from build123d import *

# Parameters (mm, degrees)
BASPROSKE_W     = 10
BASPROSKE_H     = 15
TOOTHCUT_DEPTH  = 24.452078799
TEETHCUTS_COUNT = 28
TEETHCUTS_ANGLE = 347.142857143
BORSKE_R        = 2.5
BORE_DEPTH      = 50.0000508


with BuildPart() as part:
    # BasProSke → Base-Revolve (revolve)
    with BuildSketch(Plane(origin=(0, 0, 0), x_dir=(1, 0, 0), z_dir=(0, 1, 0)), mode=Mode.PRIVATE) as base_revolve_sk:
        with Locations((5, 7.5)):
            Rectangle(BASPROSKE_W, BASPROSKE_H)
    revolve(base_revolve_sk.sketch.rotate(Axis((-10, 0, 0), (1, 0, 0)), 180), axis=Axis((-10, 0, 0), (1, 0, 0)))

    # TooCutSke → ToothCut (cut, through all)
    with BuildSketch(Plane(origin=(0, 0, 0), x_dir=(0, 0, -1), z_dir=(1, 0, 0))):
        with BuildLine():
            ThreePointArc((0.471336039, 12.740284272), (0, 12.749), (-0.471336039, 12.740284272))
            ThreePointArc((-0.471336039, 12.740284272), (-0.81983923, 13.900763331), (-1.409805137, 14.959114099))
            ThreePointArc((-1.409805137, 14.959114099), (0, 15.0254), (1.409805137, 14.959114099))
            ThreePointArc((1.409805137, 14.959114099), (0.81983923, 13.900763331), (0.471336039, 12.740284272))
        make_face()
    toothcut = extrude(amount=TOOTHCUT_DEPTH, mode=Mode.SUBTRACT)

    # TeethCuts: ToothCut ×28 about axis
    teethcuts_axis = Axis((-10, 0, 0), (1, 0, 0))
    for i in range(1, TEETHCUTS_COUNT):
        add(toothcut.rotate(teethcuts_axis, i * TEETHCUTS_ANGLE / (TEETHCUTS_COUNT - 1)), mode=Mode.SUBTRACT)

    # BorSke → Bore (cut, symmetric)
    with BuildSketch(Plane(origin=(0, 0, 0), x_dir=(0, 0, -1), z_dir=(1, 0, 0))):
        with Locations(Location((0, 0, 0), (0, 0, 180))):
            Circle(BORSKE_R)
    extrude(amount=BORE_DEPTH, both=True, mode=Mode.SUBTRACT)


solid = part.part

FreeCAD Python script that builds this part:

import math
import FreeCAD as App
import Part
import Sketcher

V = App.Vector
Q = App.Units.Quantity


def add_polygon(sketch, points):
    """Adds a closed chain of lines whose ends are joined by coincident constraints."""
    first, n = sketch.GeometryCount, len(points)
    for a, b in zip(points, points[1:] + points[:1]):
        sketch.addGeometry(Part.LineSegment(App.Vector(*a, 0), App.Vector(*b, 0)), False)
    for i in range(n):
        sketch.addConstraint(Sketcher.Constraint("Coincident", first + i, 2, first + (i + 1) % n, 1))

doc = App.newDocument("Part")
body = doc.addObject("PartDesign::Body", "Body")

sketch1 = body.newObject("Sketcher::SketchObject", "Sketch")
sketch1.AttachmentSupport = (doc.getObject("XZ_Plane"), [""])
sketch1.MapMode = "FlatFace"
add_polygon(sketch1, [(0, -15), (0, 0), (10, 0), (10, -15)])
sketch1.addConstraint([
    Sketcher.Constraint("Vertical", 0),
    Sketcher.Constraint("Horizontal", 1),
    Sketcher.Constraint("Vertical", 2),
    Sketcher.Constraint("Horizontal", 3),
    Sketcher.Constraint("Coincident", 0, 2, -1, 1),
    Sketcher.Constraint("DistanceX", 1, 1, 1, 2, Q("10 mm")),
    Sketcher.Constraint("DistanceY", 0, 1, 0, 2, Q("15 mm")),
])
revolution = body.newObject("PartDesign::Revolution", "Revolution")
revolution.Profile = sketch1
revolution.ReferenceAxis = (sketch1, ["H_Axis"])
revolution.Angle = 360

sketch2 = body.newObject("Sketcher::SketchObject", "Sketch001")
sketch2.AttachmentSupport = (doc.getObject("YZ_Plane"), [""])
sketch2.MapMode = "FlatFace"
sketch2.addGeometry([
    Part.ArcOfCircle(Part.Circle(V(0, 0, 0), V(0, 0, 1), 12.749), math.radians(-2.118733), math.radians(2.118733)),
    Part.ArcOfCircle(Part.Circle(V(11.719305, -5.977478, 0), V(0, 0, 1), 5.6), math.radians(54.652268), math.radians(79.49521)),
    Part.ArcOfCircle(Part.Circle(V(0, 0, 0), V(0, 0, 1), 15.0254), math.radians(-5.383875), math.radians(5.383875)),
    Part.ArcOfCircle(Part.Circle(V(11.719305, 5.977478, 0), V(0, 0, 1), 5.6), math.radians(-79.49521), math.radians(-54.652268)),
], False)
sketch2.addConstraint([
    Sketcher.Constraint("Coincident", 0, 1, 1, 2),
    Sketcher.Constraint("Coincident", 1, 1, 2, 1),
    Sketcher.Constraint("Coincident", 2, 2, 3, 2),
    Sketcher.Constraint("Coincident", 3, 1, 0, 2),
    Sketcher.Constraint("Coincident", 0, 3, -1, 1),
    Sketcher.Constraint("Coincident", 2, 3, -1, 1),
    Sketcher.Constraint("Equal", 1, 3),
    Sketcher.Constraint("Symmetric", 1, 3, 3, 3, -1),
    Sketcher.Constraint("Radius", 1, Q("5.6 mm")),
    Sketcher.Constraint("Radius", 0, Q("12.749 mm")),
    Sketcher.Constraint("Radius", 2, Q("15.0254 mm")),
    Sketcher.Constraint("DistanceY", 1, 3, -1, 1, Q("5.977478 mm")),
    Sketcher.Constraint("DistanceX", 1, 3, 0, 1, Q("1.020979 mm")),
])
pocket1 = body.newObject("PartDesign::Pocket", "Pocket")
pocket1.Profile = sketch2
pocket1.Type = "ThroughAll"
pocket1.Reversed = True
doc.recompute()

polarpattern = body.newObject("PartDesign::PolarPattern", "PolarPattern")
polarpattern.Originals = [pocket1]
polarpattern.Axis = (doc.getObject("X_Axis"), [""])
polarpattern.Angle = 360
polarpattern.Occurrences = 28
body.Tip = polarpattern

sketch3 = body.newObject("Sketcher::SketchObject", "Sketch002")
sketch3.AttachmentSupport = (doc.getObject("YZ_Plane"), [""])
sketch3.MapMode = "FlatFace"
sketch3.addGeometry(Part.Circle(V(0, 0, 0), V(0, 0, 1), 2.5), False)
sketch3.addConstraint([
    Sketcher.Constraint("Coincident", 0, 3, -1, 1),
    Sketcher.Constraint("Diameter", 0, Q("5 mm")),
])
pocket2 = body.newObject("PartDesign::Pocket", "Pocket001")
pocket2.Profile = sketch3
pocket2.Length = 100.000102
pocket2.Midplane = True

doc.recompute()
